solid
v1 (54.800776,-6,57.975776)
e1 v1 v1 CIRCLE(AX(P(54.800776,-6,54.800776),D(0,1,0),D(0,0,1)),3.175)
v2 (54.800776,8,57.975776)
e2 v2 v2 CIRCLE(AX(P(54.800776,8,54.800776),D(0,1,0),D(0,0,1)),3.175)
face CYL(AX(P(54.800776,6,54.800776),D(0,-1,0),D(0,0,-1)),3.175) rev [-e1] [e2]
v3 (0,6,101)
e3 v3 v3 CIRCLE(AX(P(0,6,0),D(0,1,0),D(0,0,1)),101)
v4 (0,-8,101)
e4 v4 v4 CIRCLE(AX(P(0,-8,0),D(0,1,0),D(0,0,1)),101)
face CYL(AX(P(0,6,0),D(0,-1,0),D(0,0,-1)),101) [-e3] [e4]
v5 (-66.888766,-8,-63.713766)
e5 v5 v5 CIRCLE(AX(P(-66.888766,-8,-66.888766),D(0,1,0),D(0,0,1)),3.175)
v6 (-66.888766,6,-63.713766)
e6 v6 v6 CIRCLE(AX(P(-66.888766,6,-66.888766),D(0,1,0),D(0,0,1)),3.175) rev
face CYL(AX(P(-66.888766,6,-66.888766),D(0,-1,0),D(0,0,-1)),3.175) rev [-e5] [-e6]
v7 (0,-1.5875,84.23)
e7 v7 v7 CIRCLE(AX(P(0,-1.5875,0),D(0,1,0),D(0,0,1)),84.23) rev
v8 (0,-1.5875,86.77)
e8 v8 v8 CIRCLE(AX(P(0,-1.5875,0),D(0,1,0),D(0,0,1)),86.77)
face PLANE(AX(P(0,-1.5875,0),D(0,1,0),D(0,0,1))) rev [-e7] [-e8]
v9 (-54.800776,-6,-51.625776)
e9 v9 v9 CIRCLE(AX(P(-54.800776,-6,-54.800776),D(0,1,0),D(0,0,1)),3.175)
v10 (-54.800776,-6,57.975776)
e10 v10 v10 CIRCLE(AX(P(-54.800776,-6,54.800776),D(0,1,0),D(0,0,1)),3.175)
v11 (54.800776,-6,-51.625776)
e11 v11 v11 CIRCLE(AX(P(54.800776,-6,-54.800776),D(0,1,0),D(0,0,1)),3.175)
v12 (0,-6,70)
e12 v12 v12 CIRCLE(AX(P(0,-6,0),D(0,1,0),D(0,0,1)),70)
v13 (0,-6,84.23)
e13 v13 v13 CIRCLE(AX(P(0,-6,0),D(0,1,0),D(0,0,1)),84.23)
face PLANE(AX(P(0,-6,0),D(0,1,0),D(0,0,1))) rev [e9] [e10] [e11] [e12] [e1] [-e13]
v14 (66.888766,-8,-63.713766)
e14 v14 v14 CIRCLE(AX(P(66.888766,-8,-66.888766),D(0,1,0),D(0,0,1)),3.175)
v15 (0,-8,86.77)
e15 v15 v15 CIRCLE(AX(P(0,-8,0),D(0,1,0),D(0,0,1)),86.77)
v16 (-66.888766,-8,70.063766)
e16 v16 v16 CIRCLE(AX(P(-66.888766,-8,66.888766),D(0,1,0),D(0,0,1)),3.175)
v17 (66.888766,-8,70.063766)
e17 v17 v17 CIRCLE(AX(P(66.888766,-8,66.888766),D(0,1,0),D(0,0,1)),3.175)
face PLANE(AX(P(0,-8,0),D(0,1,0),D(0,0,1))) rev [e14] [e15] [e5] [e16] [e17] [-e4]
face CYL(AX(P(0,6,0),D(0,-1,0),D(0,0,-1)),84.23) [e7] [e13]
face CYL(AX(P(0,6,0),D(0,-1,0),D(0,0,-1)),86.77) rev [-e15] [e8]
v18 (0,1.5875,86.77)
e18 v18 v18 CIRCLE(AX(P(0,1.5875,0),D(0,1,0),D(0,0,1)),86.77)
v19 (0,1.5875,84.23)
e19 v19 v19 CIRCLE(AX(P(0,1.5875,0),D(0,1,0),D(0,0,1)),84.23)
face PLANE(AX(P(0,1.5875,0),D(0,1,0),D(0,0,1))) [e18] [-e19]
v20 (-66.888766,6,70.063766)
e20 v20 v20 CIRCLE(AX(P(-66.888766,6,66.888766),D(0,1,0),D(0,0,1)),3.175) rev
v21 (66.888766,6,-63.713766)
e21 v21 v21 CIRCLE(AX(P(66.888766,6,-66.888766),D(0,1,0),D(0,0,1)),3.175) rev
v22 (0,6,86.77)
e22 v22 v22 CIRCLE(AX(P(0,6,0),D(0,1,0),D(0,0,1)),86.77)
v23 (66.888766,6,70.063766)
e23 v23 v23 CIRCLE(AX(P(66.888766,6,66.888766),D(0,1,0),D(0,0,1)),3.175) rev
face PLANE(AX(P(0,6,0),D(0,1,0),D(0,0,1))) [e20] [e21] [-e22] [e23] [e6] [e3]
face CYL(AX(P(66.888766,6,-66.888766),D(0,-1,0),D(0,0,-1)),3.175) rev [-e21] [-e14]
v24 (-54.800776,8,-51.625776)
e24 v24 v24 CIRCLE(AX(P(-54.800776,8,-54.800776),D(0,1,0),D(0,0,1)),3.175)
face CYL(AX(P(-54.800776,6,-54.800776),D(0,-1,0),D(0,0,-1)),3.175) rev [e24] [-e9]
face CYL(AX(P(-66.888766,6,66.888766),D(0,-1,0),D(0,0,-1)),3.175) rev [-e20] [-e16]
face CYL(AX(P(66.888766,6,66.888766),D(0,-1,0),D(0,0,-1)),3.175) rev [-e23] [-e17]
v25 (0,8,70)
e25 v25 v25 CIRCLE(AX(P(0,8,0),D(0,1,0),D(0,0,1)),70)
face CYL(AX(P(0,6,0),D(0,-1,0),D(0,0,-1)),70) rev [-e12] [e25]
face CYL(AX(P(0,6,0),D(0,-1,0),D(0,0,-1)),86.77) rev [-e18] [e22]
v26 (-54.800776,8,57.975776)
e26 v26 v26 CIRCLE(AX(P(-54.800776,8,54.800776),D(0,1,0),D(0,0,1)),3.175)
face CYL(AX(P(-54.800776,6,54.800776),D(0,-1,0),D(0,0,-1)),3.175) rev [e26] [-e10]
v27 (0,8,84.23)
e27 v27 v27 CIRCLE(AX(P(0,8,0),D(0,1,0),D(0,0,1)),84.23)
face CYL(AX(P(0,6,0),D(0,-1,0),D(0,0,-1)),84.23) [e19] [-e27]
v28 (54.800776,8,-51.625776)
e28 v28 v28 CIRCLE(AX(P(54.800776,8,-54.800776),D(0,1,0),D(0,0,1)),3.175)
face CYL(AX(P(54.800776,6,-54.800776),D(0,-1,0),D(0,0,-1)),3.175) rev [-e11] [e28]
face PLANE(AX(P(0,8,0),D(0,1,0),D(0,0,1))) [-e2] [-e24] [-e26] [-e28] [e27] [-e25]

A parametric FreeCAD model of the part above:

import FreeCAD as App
import Part
import Sketcher
from FreeCAD import Vector
Q = App.Units.Quantity

doc = App.newDocument("Part")
body = doc.addObject("PartDesign::Body", "Body")

# Sketch on XZ plane
sketch1 = doc.addObject("Sketcher::SketchObject", "Sketch")
body.addObject(sketch1)
sketch1.AttachmentSupport = (doc.XZ_Plane, [""])
sketch1.MapMode = "FlatFace"
sketch1.addGeometry([
    Part.Circle(Vector(0, 0, 0), Vector(0, 0, 1), 101),  # 0
    Part.Circle(Vector(-66.9, -66.9, 0), Vector(0, 0, 1), 3.2),  # 1
    Part.Circle(Vector(0, 0, 0), Vector(0, 0, 1), 86.8),  # 2
    Part.Circle(Vector(-66.9, 66.9, 0), Vector(0, 0, 1), 3.2),  # 3
    Part.Circle(Vector(66.9, -66.9, 0), Vector(0, 0, 1), 3.2),  # 4
    Part.Circle(Vector(66.9, 66.9, 0), Vector(0, 0, 1), 3.2),  # 5
], False)
sketch1.addConstraint([
    Sketcher.Constraint("Coincident", 0, 3, -1, 1),
    Sketcher.Constraint("Coincident", 2, 3, -1, 1),
    Sketcher.Constraint("Equal", 1, 3),
    Sketcher.Constraint("Equal", 3, 4),
    Sketcher.Constraint("Equal", 4, 5),
    Sketcher.Constraint("Symmetric", 3, 3, 4, 3, -1, 1),
    Sketcher.Constraint("Symmetric", 1, 3, 5, 3, -1, 1),
    Sketcher.Constraint("Symmetric", 1, 3, 4, 3, -2),
    Sketcher.Constraint("Diameter", 0, Q("202 mm")),
    Sketcher.Constraint("Diameter", 1, Q("6.35 mm")),
    Sketcher.Constraint("Diameter", 2, Q("173.54 mm")),
    Sketcher.Constraint("DistanceY", 1, 3, 3, 3, Q("133.777532 mm")),
    Sketcher.Constraint("DistanceX", 1, 3, 4, 3, Q("133.777532 mm")),
])
pad1 = doc.addObject("PartDesign::Pad", "Pad")
body.addObject(pad1)
pad1.Profile = sketch1
pad1.Length = 12
pad1.Midplane = True
body2 = doc.addObject("PartDesign::Body", "Body001")

# Sketch on XZ plane
sketch2 = doc.addObject("Sketcher::SketchObject", "Sketch001")
body2.addObject(sketch2)
sketch2.AttachmentSupport = (doc.getObject("XZ_Plane001"), [""])
sketch2.MapMode = "FlatFace"
sketch2.addGeometry([
    Part.Circle(Vector(0, 0, 0), Vector(0, 0, 1), 84.2),  # 0
    Part.Circle(Vector(-54.8, -54.8, 0), Vector(0, 0, 1), 3.2),  # 1
    Part.Circle(Vector(-54.8, 54.8, 0), Vector(0, 0, 1), 3.2),  # 2
    Part.Circle(Vector(54.8, -54.8, 0), Vector(0, 0, 1), 3.2),  # 3
    Part.Circle(Vector(0, 0, 0), Vector(0, 0, 1), 70),  # 4
    Part.Circle(Vector(54.8, 54.8, 0), Vector(0, 0, 1), 3.2),  # 5
], False)
sketch2.addConstraint([
    Sketcher.Constraint("Coincident", 0, 3, -1, 1),
    Sketcher.Constraint("Coincident", 4, 3, -1, 1),
    Sketcher.Constraint("Equal", 1, 2),
    Sketcher.Constraint("Equal", 2, 3),
    Sketcher.Constraint("Equal", 3, 5),
    Sketcher.Constraint("Symmetric", 2, 3, 3, 3, -1, 1),
    Sketcher.Constraint("Symmetric", 1, 3, 5, 3, -1, 1),
    Sketcher.Constraint("Symmetric", 1, 3, 3, 3, -2),
    Sketcher.Constraint("Diameter", 4, Q("140 mm")),
    Sketcher.Constraint("Diameter", 0, Q("168.46 mm")),
    Sketcher.Constraint("Diameter", 1, Q("6.35 mm")),
    Sketcher.Constraint("DistanceY", 1, 3, 2, 3, Q("109.601551 mm")),
    Sketcher.Constraint("DistanceX", 1, 3, 3, 3, Q("109.601551 mm")),
])
pad2 = doc.addObject("PartDesign::Pad", "Pad001")
body2.addObject(pad2)
pad2.Profile = sketch2
pad2.Length = 12
pad2.Midplane = True
body.AllowCompound = True
doc.recompute()

boolean = doc.addObject("PartDesign::Boolean", "Boolean")
body.addObject(boolean)
boolean.Type = "Fuse"
boolean.addObjects([body2])

# Sketch on XZ plane
sketch3 = doc.addObject("Sketcher::SketchObject", "Sketch002")
body.addObject(sketch3)
sketch3.AttachmentSupport = (doc.XZ_Plane, [""])
sketch3.MapMode = "FlatFace"
sketch3.addGeometry([
    Part.Circle(Vector(0, 0, 0), Vector(0, 0, 1), 87),
    Part.Circle(Vector(0, 0, 0), Vector(0, 0, 1), 84),
], False)
sketch3.addConstraint([
    Sketcher.Constraint("Coincident", 0, 3, -1, 1),
    Sketcher.Constraint("Coincident", 1, 3, -1, 1),
    Sketcher.Constraint("Diameter", 0, Q("173.54 mm")),
    Sketcher.Constraint("Diameter", 1, Q("168.46 mm")),
])
pad3 = doc.addObject("PartDesign::Pad", "Pad002")
body.addObject(pad3)
pad3.Profile = sketch3
pad3.Length = 3.175
pad3.Midplane = True

# Sketch on XZ plane
sketch4 = doc.addObject("Sketcher::SketchObject", "Sketch003")
body.addObject(sketch4)
sketch4.AttachmentSupport = (doc.XZ_Plane, [""])
sketch4.MapMode = "FlatFace"
sketch4.AttachmentOffset = App.Placement(Vector(0, 0, -6), App.Rotation())
sketch4.addGeometry([
    Part.Circle(Vector(0, 0, 0), Vector(0, 0, 1), 84.2),  # 0
    Part.Circle(Vector(-54.8, -54.8, 0), Vector(0, 0, 1), 3.2),  # 1
    Part.Circle(Vector(-54.8, 54.8, 0), Vector(0, 0, 1), 3.2),  # 2
    Part.Circle(Vector(54.8, -54.8, 0), Vector(0, 0, 1), 3.2),  # 3
    Part.Circle(Vector(0, 0, 0), Vector(0, 0, 1), 70),  # 4
    Part.Circle(Vector(54.8, 54.8, 0), Vector(0, 0, 1), 3.2),  # 5
], False)
sketch4.addConstraint([
    Sketcher.Constraint("Coincident", 0, 3, -1, 1),
    Sketcher.Constraint("Coincident", 4, 3, -1, 1),
    Sketcher.Constraint("Equal", 1, 2),
    Sketcher.Constraint("Equal", 2, 3),
    Sketcher.Constraint("Equal", 3, 5),
    Sketcher.Constraint("Symmetric", 2, 3, 3, 3, -1, 1),
    Sketcher.Constraint("Symmetric", 1, 3, 5, 3, -1, 1),
    Sketcher.Constraint("Symmetric", 1, 3, 3, 3, -2),
    Sketcher.Constraint("Diameter", 4, Q("140 mm")),
    Sketcher.Constraint("Diameter", 0, Q("168.46 mm")),
    Sketcher.Constraint("Diameter", 1, Q("6.35 mm")),
    Sketcher.Constraint("DistanceY", 1, 3, 2, 3, Q("109.601551 mm")),
    Sketcher.Constraint("DistanceX", 1, 3, 3, 3, Q("109.601551 mm")),
])
pad4 = doc.addObject("PartDesign::Pad", "Pad003")
body.addObject(pad4)
pad4.Profile = sketch4
pad4.Length = 2
pad4.Reversed = True

# Sketch on XZ plane
sketch5 = doc.addObject("Sketcher::SketchObject", "Sketch004")
body.addObject(sketch5)
sketch5.AttachmentSupport = (doc.XZ_Plane, [""])
sketch5.MapMode = "FlatFace"
sketch5.AttachmentOffset = App.Placement(Vector(0, 0, 8), App.Rotation())
sketch5.addGeometry([
    Part.Circle(Vector(0, 0, 0), Vector(0, 0, 1), 101),  # 0
    Part.Circle(Vector(-66.9, -66.9, 0), Vector(0, 0, 1), 3.2),  # 1
    Part.Circle(Vector(0, 0, 0), Vector(0, 0, 1), 86.8),  # 2
    Part.Circle(Vector(-66.9, 66.9, 0), Vector(0, 0, 1), 3.2),  # 3
    Part.Circle(Vector(66.9, -66.9, 0), Vector(0, 0, 1), 3.2),  # 4
    Part.Circle(Vector(66.9, 66.9, 0), Vector(0, 0, 1), 3.2),  # 5
], False)
sketch5.addConstraint([
    Sketcher.Constraint("Coincident", 0, 3, -1, 1),
    Sketcher.Constraint("Coincident", 2, 3, -1, 1),
    Sketcher.Constraint("Equal", 1, 3),
    Sketcher.Constraint("Equal", 3, 4),
    Sketcher.Constraint("Equal", 4, 5),
    Sketcher.Constraint("Symmetric", 3, 3, 4, 3, -1, 1),
    Sketcher.Constraint("Symmetric", 1, 3, 5, 3, -1, 1),
    Sketcher.Constraint("Symmetric", 1, 3, 4, 3, -2),
    Sketcher.Constraint("Diameter", 0, Q("202 mm")),
    Sketcher.Constraint("Diameter", 1, Q("6.35 mm")),
    Sketcher.Constraint("Diameter", 2, Q("173.54 mm")),
    Sketcher.Constraint("DistanceY", 1, 3, 3, 3, Q("133.777532 mm")),
    Sketcher.Constraint("DistanceX", 1, 3, 4, 3, Q("133.777532 mm")),
])
pad5 = doc.addObject("PartDesign::Pad", "Pad004")
body.addObject(pad5)
pad5.Profile = sketch5
pad5.Length = 2
pad5.Reversed = True

doc.recompute()
